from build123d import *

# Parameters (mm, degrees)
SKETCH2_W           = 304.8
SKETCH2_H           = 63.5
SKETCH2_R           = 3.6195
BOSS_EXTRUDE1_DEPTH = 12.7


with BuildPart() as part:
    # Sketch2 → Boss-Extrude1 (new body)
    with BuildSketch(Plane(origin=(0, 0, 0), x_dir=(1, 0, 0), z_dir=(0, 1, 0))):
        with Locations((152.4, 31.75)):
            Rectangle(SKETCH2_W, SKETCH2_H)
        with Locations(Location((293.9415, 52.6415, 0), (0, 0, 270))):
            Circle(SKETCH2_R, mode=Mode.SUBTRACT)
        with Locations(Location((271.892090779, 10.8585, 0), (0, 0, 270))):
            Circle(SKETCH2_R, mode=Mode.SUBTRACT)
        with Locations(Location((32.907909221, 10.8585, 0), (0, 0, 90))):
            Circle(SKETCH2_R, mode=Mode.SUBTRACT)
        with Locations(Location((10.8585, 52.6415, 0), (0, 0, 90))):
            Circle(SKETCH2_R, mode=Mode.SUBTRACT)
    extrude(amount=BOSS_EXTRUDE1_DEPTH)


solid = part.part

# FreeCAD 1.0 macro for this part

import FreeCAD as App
import Part
import Sketcher

V = App.Vector
Q = App.Units.Quantity


def add_polygon(sketch, points):
    """Adds a closed chain of lines whose ends are joined by coincident constraints."""
    first, n = sketch.GeometryCount, len(points)
    for a, b in zip(points, points[1:] + points[:1]):
        sketch.addGeometry(Part.LineSegment(App.Vector(*a, 0), App.Vector(*b, 0)), False)
    for i in range(n):
        sketch.addConstraint(Sketcher.Constraint("Coincident", first + i, 2, first + (i + 1) % n, 1))

doc = App.newDocument("Part")
body = doc.addObject("PartDesign::Body", "Body")

# Sketch on XZ plane
sketch1 = body.newObject("Sketcher::SketchObject", "Sketch")
sketch1.AttachmentSupport = (doc.getObject("XZ_Plane"), [""])
sketch1.MapMode = "FlatFace"
add_polygon(sketch1, [(0, -63.5), (0, 0), (304.8, 0), (304.8, -63.5)])  # lines 0-3
sketch1.addGeometry(Part.Circle(V(32.9, -10.9, 0), V(0, 0, 1), 3.6), False)  # 4
sketch1.addGeometry(Part.Circle(V(271.9, -10.9, 0), V(0, 0, 1), 3.6), False)  # 5
sketch1.addGeometry(Part.Circle(V(10.9, -52.6, 0), V(0, 0, 1), 3.6), False)  # 6
sketch1.addGeometry(Part.Circle(V(293.9, -52.6, 0), V(0, 0, 1), 3.6), False)  # 7
sketch1.addConstraint(Sketcher.Constraint("Vertical", 0))
sketch1.addConstraint(Sketcher.Constraint("Horizontal", 1))
sketch1.addConstraint(Sketcher.Constraint("Vertical", 2))
sketch1.addConstraint(Sketcher.Constraint("Horizontal", 3))
sketch1.addConstraint(Sketcher.Constraint("Coincident", 0, 2, -1, 1))
sketch1.addConstraint(Sketcher.Constraint("Equal", 4, 5))
sketch1.addConstraint(Sketcher.Constraint("Equal", 5, 6))
sketch1.addConstraint(Sketcher.Constraint("Equal", 6, 7))
sketch1.addConstraint(Sketcher.Constraint("Horizontal", 4, 3, 5, 3))
sketch1.addConstraint(Sketcher.Constraint("Horizontal", 6, 3, 7, 3))
sketch1.addConstraint(Sketcher.Constraint("DistanceX", 1, 1, 1, 2, Q("12 in")))
sketch1.addConstraint(Sketcher.Constraint("Diameter", 4, Q("0.285 in")))
sketch1.addConstraint(Sketcher.Constraint("DistanceY", 0, 1, 0, 2, Q("2.5 in")))
sketch1.addConstraint(Sketcher.Constraint("DistanceY", 6, 3, 4, 3, Q("1.645 in")))
sketch1.addConstraint(Sketcher.Constraint("DistanceX", 6, 3, 7, 3, Q("11.145 in")))
sketch1.addConstraint(Sketcher.Constraint("DistanceY", 4, 3, -1, 1, Q("0.4275 in")))
sketch1.addConstraint(Sketcher.Constraint("DistanceX", -1, 1, 6, 3, Q("0.4275 in")))
sketch1.addConstraint(Sketcher.Constraint("DistanceX", -1, 1, 4, 3, Q("32.907909 mm")))
sketch1.addConstraint(Sketcher.Constraint("DistanceX", -1, 1, 5, 3, Q("271.892091 mm")))
pad1 = body.newObject("PartDesign::Pad", "Pad")
pad1.Profile = sketch1
pad1.Length = Q("0.5 in")
pad1.Reversed = True

doc.recompute()
